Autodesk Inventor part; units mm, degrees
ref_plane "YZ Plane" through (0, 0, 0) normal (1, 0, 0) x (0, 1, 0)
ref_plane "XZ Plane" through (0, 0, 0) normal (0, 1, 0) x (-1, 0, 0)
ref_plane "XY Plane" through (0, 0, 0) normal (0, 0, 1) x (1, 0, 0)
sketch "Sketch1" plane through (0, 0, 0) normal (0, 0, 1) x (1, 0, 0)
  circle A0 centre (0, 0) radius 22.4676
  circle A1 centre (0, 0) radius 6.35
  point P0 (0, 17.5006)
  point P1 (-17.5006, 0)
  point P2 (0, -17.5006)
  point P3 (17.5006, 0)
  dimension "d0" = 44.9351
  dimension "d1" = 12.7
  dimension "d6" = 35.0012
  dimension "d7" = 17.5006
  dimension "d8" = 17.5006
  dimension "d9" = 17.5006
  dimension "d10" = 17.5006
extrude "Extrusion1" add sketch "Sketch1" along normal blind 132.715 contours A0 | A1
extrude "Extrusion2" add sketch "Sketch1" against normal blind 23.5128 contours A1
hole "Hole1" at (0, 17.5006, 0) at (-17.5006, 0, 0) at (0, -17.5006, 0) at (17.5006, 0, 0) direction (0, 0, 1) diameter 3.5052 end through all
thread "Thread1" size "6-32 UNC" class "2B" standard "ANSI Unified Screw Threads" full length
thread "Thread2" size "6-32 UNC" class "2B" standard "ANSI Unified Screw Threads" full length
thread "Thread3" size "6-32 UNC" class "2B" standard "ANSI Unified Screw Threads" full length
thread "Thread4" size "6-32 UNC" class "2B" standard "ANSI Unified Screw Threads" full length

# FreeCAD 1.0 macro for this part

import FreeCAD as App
import Part
import Sketcher
from FreeCAD import Vector
Q = App.Units.Quantity

doc = App.newDocument("Part")
params = doc.addObject("Spreadsheet::Sheet", "Params")
for row, (alias, value) in enumerate([
    ("pad1_length", "5.225 in"),
    ("sketch2_diameter", "0.5 in"),
    ("pad2_length", "0.9257008 in"),
    ("sketch3_diameter", "0.138 in"),
    ("hole_diameter", "0.138 in"),
], start=1):
    params.set(f"A{row}", alias)
    params.set(f"B{row}", "=" + value)
    params.setAlias(f"B{row}", alias)

body = doc.addObject("PartDesign::Body", "Body")

sketch1 = doc.addObject("Sketcher::SketchObject", "Sketch")
body.addObject(sketch1)
sketch1.AttachmentSupport = (doc.XY_Plane, [""])
sketch1.MapMode = "FlatFace"
sketch1.addGeometry(Part.Circle(Vector(0, 0, 0), Vector(0, 0, 1), 22), False)
sketch1.addConstraint([
    Sketcher.Constraint("Coincident", 0, 3, -1, 1),
    Sketcher.Constraint("Diameter", 0, Q("1.7691 in")),
])
pad1 = doc.addObject("PartDesign::Pad", "Pad")
body.addObject(pad1)
pad1.Profile = sketch1
pad1.setExpression("Length", "Params.pad1_length")

sketch2 = doc.addObject("Sketcher::SketchObject", "Sketch001")
body.addObject(sketch2)
sketch2.AttachmentSupport = (doc.XY_Plane, [""])
sketch2.MapMode = "FlatFace"
sketch2.addGeometry(Part.Circle(Vector(0, 0, 0), Vector(0, 0, 1), 6), False)
sketch2.addConstraint([
    Sketcher.Constraint("Coincident", 0, 3, -1, 1),
    Sketcher.Constraint("Diameter", 0, Q("0.5 in")),
])
sketch2.setExpression("Constraints[1]", "Params.sketch2_diameter")
pad2 = doc.addObject("PartDesign::Pad", "Pad001")
body.addObject(pad2)
pad2.Profile = sketch2
pad2.setExpression("Length", "Params.pad2_length")
pad2.Reversed = True

sketch3 = doc.addObject("Sketcher::SketchObject", "Sketch002")
body.addObject(sketch3)
sketch3.AttachmentSupport = (doc.XY_Plane, [""])
sketch3.MapMode = "FlatFace"
sketch3.addGeometry([
    Part.Circle(Vector(0, 17.5, 0), Vector(0, 0, 1), 1.8),
    Part.Circle(Vector(-17.5, 0, 0), Vector(0, 0, 1), 1.8),
    Part.Circle(Vector(0, -17.5, 0), Vector(0, 0, 1), 1.8),
    Part.Circle(Vector(17.5, 0, 0), Vector(0, 0, 1), 1.8),
], False)
sketch3.addConstraint([
    Sketcher.Constraint("Equal", 0, 1),
    Sketcher.Constraint("Equal", 1, 2),
    Sketcher.Constraint("Equal", 2, 3),
    Sketcher.Constraint("Symmetric", 0, 3, 2, 3, -1, 1),
    Sketcher.Constraint("Symmetric", 1, 3, 3, 3, -1, 1),
    Sketcher.Constraint("PointOnObject", 0, 3, -2),
    Sketcher.Constraint("PointOnObject", 1, 3, -1),
    Sketcher.Constraint("Diameter", 0, Q("0.138 in")),
    Sketcher.Constraint("DistanceY", -1, 1, 0, 3, Q("0.689 in")),
    Sketcher.Constraint("DistanceX", 1, 3, -1, 1, Q("0.689 in")),
])
sketch3.setExpression("Constraints[7]", "Params.sketch3_diameter")
doc.recompute()
hole = doc.addObject("PartDesign::Hole", "Hole")
body.addObject(hole)
hole.Profile = sketch3
hole.ThreadType = "None"
hole.setExpression("Diameter", "Params.hole_diameter")
hole.DepthType = "ThroughAll"
hole.Reversed = True

doc.recompute()
